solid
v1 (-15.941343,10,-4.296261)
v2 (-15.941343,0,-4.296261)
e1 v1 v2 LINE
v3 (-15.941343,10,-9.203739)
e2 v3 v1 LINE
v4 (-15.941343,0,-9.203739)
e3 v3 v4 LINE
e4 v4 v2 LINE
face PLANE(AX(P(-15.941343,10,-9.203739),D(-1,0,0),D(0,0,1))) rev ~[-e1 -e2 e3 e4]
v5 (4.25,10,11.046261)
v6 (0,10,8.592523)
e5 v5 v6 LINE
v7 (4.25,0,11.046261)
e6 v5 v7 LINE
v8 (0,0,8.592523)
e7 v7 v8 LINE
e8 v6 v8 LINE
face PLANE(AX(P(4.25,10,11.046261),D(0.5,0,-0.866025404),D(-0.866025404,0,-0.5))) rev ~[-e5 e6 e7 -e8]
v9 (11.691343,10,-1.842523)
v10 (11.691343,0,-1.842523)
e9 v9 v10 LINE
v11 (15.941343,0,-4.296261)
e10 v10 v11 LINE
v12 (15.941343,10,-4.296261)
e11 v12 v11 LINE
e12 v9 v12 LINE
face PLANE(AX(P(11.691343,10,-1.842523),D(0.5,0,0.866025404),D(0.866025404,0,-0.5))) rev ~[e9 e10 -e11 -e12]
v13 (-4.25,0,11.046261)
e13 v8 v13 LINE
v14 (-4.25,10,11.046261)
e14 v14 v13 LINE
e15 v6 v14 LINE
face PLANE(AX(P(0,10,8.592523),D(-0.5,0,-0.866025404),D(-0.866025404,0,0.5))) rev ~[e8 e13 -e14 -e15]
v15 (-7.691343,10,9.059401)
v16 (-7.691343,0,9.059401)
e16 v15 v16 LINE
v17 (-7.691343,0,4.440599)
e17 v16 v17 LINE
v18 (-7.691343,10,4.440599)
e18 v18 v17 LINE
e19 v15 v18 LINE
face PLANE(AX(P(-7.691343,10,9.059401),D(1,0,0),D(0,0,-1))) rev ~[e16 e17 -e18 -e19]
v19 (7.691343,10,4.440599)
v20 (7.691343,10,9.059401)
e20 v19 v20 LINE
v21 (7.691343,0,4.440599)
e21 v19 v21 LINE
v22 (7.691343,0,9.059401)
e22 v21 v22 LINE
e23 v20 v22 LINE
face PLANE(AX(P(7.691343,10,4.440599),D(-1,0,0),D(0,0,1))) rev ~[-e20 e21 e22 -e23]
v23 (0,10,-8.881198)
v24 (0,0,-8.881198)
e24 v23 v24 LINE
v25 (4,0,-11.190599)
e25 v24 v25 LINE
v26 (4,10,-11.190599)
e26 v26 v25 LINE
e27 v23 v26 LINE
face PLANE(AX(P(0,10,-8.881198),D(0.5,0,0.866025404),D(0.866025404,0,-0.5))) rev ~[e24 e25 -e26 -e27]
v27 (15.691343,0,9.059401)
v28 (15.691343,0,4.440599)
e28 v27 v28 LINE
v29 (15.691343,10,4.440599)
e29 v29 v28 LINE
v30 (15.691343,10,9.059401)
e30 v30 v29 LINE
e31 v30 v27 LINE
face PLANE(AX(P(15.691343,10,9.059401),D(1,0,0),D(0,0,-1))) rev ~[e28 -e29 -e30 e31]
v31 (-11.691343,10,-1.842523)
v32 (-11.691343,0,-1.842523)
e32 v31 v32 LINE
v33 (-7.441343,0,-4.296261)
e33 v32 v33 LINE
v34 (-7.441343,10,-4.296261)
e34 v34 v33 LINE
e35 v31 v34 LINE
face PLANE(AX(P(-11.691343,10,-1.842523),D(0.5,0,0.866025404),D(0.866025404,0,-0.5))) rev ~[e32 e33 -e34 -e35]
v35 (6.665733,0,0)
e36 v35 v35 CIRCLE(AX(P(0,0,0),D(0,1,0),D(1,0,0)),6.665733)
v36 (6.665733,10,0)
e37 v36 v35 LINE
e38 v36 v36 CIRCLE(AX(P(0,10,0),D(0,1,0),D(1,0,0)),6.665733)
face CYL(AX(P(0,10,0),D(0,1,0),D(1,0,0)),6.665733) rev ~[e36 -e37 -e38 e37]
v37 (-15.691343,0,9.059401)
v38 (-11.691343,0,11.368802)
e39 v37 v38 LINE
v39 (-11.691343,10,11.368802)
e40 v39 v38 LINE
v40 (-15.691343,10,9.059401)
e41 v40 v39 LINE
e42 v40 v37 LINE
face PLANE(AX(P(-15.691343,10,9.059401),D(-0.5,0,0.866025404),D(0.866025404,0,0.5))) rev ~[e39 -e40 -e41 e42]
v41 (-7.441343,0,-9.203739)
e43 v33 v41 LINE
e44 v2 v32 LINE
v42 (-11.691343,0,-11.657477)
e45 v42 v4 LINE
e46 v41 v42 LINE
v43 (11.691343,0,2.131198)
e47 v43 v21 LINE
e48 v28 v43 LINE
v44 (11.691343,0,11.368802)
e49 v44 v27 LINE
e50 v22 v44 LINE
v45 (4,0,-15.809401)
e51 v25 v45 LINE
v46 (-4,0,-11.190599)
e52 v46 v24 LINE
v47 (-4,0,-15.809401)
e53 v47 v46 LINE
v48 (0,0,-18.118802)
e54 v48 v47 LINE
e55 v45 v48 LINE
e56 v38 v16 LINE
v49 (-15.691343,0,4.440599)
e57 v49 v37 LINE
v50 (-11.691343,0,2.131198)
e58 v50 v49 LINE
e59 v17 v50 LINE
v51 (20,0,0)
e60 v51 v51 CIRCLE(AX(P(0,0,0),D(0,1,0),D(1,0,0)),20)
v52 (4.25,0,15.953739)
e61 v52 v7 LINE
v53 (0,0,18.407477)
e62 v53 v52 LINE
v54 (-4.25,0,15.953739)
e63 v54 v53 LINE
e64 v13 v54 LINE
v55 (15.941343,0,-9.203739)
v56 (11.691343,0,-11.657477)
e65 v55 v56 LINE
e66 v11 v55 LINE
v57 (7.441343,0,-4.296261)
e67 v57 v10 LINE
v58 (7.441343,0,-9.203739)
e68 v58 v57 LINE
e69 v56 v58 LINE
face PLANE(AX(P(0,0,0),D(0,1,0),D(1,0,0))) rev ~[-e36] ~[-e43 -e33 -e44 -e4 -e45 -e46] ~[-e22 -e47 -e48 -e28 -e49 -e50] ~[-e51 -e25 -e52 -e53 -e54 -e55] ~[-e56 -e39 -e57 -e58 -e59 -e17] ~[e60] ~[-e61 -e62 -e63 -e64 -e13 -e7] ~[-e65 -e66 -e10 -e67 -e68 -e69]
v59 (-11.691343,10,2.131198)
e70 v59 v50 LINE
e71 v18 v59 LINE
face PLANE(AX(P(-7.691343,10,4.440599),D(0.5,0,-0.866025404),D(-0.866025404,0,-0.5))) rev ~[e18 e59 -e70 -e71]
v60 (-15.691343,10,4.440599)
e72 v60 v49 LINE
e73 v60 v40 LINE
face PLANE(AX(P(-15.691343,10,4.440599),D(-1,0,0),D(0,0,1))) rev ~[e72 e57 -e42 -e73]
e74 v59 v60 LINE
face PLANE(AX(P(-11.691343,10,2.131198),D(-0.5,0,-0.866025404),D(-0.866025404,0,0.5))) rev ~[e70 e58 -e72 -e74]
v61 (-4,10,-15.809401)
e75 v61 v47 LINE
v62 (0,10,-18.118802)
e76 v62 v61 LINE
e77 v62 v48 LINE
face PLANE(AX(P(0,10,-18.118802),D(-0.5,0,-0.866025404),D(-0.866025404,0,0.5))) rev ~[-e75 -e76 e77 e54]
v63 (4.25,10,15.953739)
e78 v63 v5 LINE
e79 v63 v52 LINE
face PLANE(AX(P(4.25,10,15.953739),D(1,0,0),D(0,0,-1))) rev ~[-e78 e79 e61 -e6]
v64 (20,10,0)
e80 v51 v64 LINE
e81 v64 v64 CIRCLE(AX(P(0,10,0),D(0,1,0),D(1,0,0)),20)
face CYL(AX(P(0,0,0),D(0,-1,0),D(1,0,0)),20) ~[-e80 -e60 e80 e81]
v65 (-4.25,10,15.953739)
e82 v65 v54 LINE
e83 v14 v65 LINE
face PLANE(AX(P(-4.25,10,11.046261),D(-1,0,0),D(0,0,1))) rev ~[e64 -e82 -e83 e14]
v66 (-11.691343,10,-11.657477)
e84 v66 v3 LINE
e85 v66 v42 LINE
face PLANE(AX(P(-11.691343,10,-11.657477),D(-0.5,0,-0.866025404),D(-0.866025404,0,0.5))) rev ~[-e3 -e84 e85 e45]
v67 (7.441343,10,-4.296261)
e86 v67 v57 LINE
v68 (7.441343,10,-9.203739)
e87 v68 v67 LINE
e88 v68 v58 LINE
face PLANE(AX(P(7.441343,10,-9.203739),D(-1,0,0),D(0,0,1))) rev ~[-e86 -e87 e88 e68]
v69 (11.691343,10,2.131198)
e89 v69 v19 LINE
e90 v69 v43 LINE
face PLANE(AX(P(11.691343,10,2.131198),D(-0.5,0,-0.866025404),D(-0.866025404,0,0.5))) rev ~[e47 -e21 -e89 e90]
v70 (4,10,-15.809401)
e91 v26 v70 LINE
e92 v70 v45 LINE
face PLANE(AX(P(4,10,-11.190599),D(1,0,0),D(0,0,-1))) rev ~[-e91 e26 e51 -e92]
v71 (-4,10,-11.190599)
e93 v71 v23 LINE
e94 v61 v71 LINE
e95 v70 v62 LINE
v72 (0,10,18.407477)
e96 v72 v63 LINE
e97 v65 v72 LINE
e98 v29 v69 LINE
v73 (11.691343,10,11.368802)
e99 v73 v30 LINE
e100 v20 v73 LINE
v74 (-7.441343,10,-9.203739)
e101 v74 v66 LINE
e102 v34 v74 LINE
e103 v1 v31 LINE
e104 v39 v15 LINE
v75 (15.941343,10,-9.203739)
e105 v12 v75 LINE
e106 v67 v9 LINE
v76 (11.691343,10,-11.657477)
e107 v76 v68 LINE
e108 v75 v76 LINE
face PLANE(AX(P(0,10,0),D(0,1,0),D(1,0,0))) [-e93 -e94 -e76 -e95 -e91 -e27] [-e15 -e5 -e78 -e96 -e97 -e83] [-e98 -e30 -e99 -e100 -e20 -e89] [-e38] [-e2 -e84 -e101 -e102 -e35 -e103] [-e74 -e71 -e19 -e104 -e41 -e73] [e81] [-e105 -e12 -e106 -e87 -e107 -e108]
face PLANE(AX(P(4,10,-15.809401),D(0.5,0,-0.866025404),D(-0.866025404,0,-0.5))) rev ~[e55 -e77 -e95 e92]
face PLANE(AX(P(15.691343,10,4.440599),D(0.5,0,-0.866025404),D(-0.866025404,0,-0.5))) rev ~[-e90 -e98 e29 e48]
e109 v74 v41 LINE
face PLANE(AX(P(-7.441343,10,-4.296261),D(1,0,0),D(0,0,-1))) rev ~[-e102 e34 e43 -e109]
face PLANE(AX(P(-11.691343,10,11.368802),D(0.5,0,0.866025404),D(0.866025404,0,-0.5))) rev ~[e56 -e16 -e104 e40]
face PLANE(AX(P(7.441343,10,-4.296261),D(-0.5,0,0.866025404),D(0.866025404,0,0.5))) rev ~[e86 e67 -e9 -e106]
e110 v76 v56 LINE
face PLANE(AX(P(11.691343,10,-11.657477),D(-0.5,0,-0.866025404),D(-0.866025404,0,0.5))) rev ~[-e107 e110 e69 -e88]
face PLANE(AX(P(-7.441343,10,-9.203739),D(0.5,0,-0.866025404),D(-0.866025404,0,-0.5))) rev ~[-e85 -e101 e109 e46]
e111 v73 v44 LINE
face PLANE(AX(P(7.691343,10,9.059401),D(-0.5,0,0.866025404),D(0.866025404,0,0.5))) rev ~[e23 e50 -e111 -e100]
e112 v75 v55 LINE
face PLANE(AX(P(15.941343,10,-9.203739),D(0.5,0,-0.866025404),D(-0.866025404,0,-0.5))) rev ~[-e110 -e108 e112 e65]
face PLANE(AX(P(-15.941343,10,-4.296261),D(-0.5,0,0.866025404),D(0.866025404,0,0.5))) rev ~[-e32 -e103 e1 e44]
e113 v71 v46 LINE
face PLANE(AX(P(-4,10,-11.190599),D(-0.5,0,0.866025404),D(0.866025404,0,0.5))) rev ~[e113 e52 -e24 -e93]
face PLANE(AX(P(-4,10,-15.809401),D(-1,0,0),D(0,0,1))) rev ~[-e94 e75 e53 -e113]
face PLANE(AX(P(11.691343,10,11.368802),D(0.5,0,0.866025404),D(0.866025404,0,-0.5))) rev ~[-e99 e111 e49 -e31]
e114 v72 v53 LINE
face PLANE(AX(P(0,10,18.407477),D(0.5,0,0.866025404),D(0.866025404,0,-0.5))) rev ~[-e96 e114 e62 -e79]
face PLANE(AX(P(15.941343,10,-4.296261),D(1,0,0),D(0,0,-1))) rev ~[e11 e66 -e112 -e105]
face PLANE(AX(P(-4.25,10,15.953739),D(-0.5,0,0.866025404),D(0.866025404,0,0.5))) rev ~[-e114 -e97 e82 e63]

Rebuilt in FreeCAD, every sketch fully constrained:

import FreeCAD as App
import Part
import Sketcher

V = App.Vector
Q = App.Units.Quantity

doc = App.newDocument("Part")
params = doc.addObject("Spreadsheet::Sheet", "Params")
for row, (alias, value) in enumerate([
    ("sketch1_diameter", "40 mm"),
    ("pad1_length", "10 mm"),
    ("pocket1_length", "10 mm"),
    ("pocket2_length", "10 mm"),
    ("pocket3_length", "10 mm"),
], start=1):
    params.set(f"A{row}", alias)
    params.set(f"B{row}", "=" + value)
    params.setAlias(f"B{row}", alias)

body = doc.addObject("PartDesign::Body", "Body")

sketch1 = body.newObject("Sketcher::SketchObject", "Sketch")
sketch1.AttachmentSupport = (doc.getObject("XZ_Plane"), [""])
sketch1.MapMode = "FlatFace"
sketch1.addGeometry(Part.Circle(V(0, 0, 0), V(0, 0, 1), 20), False)
sketch1.addConstraint([
    Sketcher.Constraint("Coincident", 0, 3, -1, 1),
    Sketcher.Constraint("Diameter", 0, Q("40 mm")),
])
sketch1.setExpression("Constraints[1]", "Params.sketch1_diameter")
pad1 = body.newObject("PartDesign::Pad", "Pad")
pad1.Profile = sketch1
pad1.setExpression("Length", "Params.pad1_length")
pad1.Reversed = True

sketch2 = body.newObject("Sketcher::SketchObject", "Sketch001")
sketch2.AttachmentSupport = (doc.getObject("XZ_Plane"), [""])
sketch2.MapMode = "FlatFace"
sketch2.AttachmentOffset = App.Placement(V(0, 0, -10), App.Rotation())
sketch2.addGeometry([
    Part.LineSegment(V(7.7, 4.4, 0), V(7.7, 9.1, 0)),
    Part.LineSegment(V(7.7, 9.1, 0), V(11.7, 11.4, 0)),
    Part.LineSegment(V(11.7, 11.4, 0), V(15.7, 9.1, 0)),
    Part.LineSegment(V(15.7, 9.1, 0), V(15.7, 4.4, 0)),
    Part.LineSegment(V(15.7, 4.4, 0), V(11.7, 2.1, 0)),
    Part.LineSegment(V(11.7, 2.1, 0), V(7.7, 4.4, 0)),
    Part.LineSegment(V(0, -8.9, 0), V(4, -11.2, 0)),
    Part.LineSegment(V(4, -11.2, 0), V(4, -15.8, 0)),
    Part.LineSegment(V(4, -15.8, 0), V(0, -18.1, 0)),
    Part.LineSegment(V(0, -18.1, 0), V(-4, -15.8, 0)),
    Part.LineSegment(V(-4, -15.8, 0), V(-4, -11.2, 0)),
    Part.LineSegment(V(-4, -11.2, 0), V(0, -8.9, 0)),
    Part.LineSegment(V(-7.7, 4.4, 0), V(-11.7, 2.1, 0)),
    Part.LineSegment(V(-11.7, 2.1, 0), V(-15.7, 4.4, 0)),
    Part.LineSegment(V(-15.7, 4.4, 0), V(-15.7, 9.1, 0)),
    Part.LineSegment(V(-15.7, 9.1, 0), V(-11.7, 11.4, 0)),
    Part.LineSegment(V(-11.7, 11.4, 0), V(-7.7, 9.1, 0)),
    Part.LineSegment(V(-7.7, 9.1, 0), V(-7.7, 4.4, 0)),
], False)
sketch2.addConstraint([
    Sketcher.Constraint("Coincident", 0, 2, 1, 1),
    Sketcher.Constraint("Coincident", 1, 2, 2, 1),
    Sketcher.Constraint("Coincident", 2, 2, 3, 1),
    Sketcher.Constraint("Coincident", 3, 2, 4, 1),
    Sketcher.Constraint("Coincident", 4, 2, 5, 1),
    Sketcher.Constraint("Coincident", 5, 2, 0, 1),
    Sketcher.Constraint("Coincident", 6, 2, 7, 1),
    Sketcher.Constraint("Coincident", 7, 2, 8, 1),
    Sketcher.Constraint("Coincident", 8, 2, 9, 1),
    Sketcher.Constraint("Coincident", 9, 2, 10, 1),
    Sketcher.Constraint("Coincident", 10, 2, 11, 1),
    Sketcher.Constraint("Coincident", 11, 2, 6, 1),
    Sketcher.Constraint("Coincident", 12, 2, 13, 1),
    Sketcher.Constraint("Coincident", 13, 2, 14, 1),
    Sketcher.Constraint("Coincident", 14, 2, 15, 1),
    Sketcher.Constraint("Coincident", 15, 2, 16, 1),
    Sketcher.Constraint("Coincident", 16, 2, 17, 1),
    Sketcher.Constraint("Coincident", 17, 2, 12, 1),
    Sketcher.Constraint("Vertical", 0),
    Sketcher.Constraint("Vertical", 3),
    Sketcher.Constraint("Vertical", 7),
    Sketcher.Constraint("Vertical", 10),
    Sketcher.Constraint("Vertical", 14),
    Sketcher.Constraint("Vertical", 17),
    Sketcher.Constraint("Symmetric", 7, 2, 9, 2, -2),
    Sketcher.Constraint("Symmetric", 4, 2, 12, 2, -2),
    Sketcher.Constraint("Symmetric", 3, 2, 13, 2, -2),
    Sketcher.Constraint("Symmetric", 1, 2, 15, 2, -2),
    Sketcher.Constraint("Symmetric", 0, 2, 16, 2, -2),
    Sketcher.Constraint("PointOnObject", 8, 2, -2),
    Sketcher.Constraint("PointOnObject", 11, 2, -2),
    Sketcher.Constraint("Parallel", 1, 4),
    Sketcher.Constraint("Parallel", 2, 5),
    Sketcher.Constraint("Parallel", 5, 6),
    Sketcher.Constraint("Parallel", 4, 8),
    Sketcher.Constraint("Parallel", 6, 9),
    Sketcher.Constraint("Parallel", 8, 11),
    Sketcher.Constraint("Parallel", 11, 12),
    Sketcher.Constraint("Parallel", 12, 15),
    Sketcher.Constraint("Horizontal", 0, 2, 2, 2),
    Sketcher.Constraint("Horizontal", 3, 2, 5, 2),
    Sketcher.Constraint("Equal", 3, 7),
    Sketcher.Constraint("Equal", 5, 6),
    Sketcher.Constraint("Angle", 1, Q("30 deg")),
    Sketcher.Constraint("DistanceX", -1, 1, 6, 2, Q("4 mm")),
    Sketcher.Constraint("DistanceY", 6, 2, 0, 2, Q("20.25 mm")),
    Sketcher.Constraint("DistanceY", -1, 1, 0, 2, Q("9.059401 mm")),
    Sketcher.Constraint("DistanceY", -1, 1, 3, 2, Q("4.440599 mm")),
    Sketcher.Constraint("DistanceX", -1, 1, 0, 2, Q("7.691343 mm")),
])
pocket1 = body.newObject("PartDesign::Pocket", "Pocket")
pocket1.Profile = sketch2
pocket1.setExpression("Length", "Params.pocket1_length")
pocket1.Reversed = True

sketch3 = body.newObject("Sketcher::SketchObject", "Sketch002")
sketch3.AttachmentSupport = (doc.getObject("XZ_Plane"), [""])
sketch3.MapMode = "FlatFace"
sketch3.AttachmentOffset = App.Placement(V(0, 0, -10), App.Rotation())
sketch3.addGeometry(Part.Circle(V(0, 0, 0), V(0, 0, 1), 7), False)
sketch3.addConstraint([
    Sketcher.Constraint("Coincident", 0, 3, -1, 1),
    Sketcher.Constraint("Diameter", 0, Q("13.331467 mm")),
])
pocket2 = body.newObject("PartDesign::Pocket", "Pocket001")
pocket2.Profile = sketch3
pocket2.setExpression("Length", "Params.pocket2_length")
pocket2.Reversed = True

sketch4 = body.newObject("Sketcher::SketchObject", "Sketch003")
sketch4.AttachmentSupport = (doc.getObject("XZ_Plane"), [""])
sketch4.MapMode = "FlatFace"
sketch4.AttachmentOffset = App.Placement(V(0, 0, -10), App.Rotation())
sketch4.addGeometry([
    Part.LineSegment(V(-11.7, -11.7, 0), V(-15.9, -9.2, 0)),
    Part.LineSegment(V(-15.9, -9.2, 0), V(-15.9, -4.3, 0)),
    Part.LineSegment(V(-15.9, -4.3, 0), V(-11.7, -1.8, 0)),
    Part.LineSegment(V(-11.7, -1.8, 0), V(-7.4, -4.3, 0)),
    Part.LineSegment(V(-7.4, -4.3, 0), V(-7.4, -9.2, 0)),
    Part.LineSegment(V(-7.4, -9.2, 0), V(-11.7, -11.7, 0)),
    Part.LineSegment(V(0, 18.4, 0), V(4.2, 16, 0)),
    Part.LineSegment(V(4.2, 16, 0), V(4.2, 11, 0)),
    Part.LineSegment(V(4.2, 11, 0), V(0, 8.6, 0)),
    Part.LineSegment(V(0, 8.6, 0), V(-4.2, 11, 0)),
    Part.LineSegment(V(-4.2, 11, 0), V(-4.2, 16, 0)),
    Part.LineSegment(V(-4.2, 16, 0), V(0, 18.4, 0)),
    Part.LineSegment(V(15.9, -4.3, 0), V(15.9, -9.2, 0)),
    Part.LineSegment(V(15.9, -9.2, 0), V(11.7, -11.7, 0)),
    Part.LineSegment(V(11.7, -11.7, 0), V(7.4, -9.2, 0)),
    Part.LineSegment(V(7.4, -9.2, 0), V(7.4, -4.3, 0)),
    Part.LineSegment(V(7.4, -4.3, 0), V(11.7, -1.8, 0)),
    Part.LineSegment(V(11.7, -1.8, 0), V(15.9, -4.3, 0)),
], False)
sketch4.addConstraint([
    Sketcher.Constraint("Coincident", 0, 2, 1, 1),
    Sketcher.Constraint("Coincident", 1, 2, 2, 1),
    Sketcher.Constraint("Coincident", 2, 2, 3, 1),
    Sketcher.Constraint("Coincident", 3, 2, 4, 1),
    Sketcher.Constraint("Coincident", 4, 2, 5, 1),
    Sketcher.Constraint("Coincident", 5, 2, 0, 1),
    Sketcher.Constraint("Coincident", 6, 2, 7, 1),
    Sketcher.Constraint("Coincident", 7, 2, 8, 1),
    Sketcher.Constraint("Coincident", 8, 2, 9, 1),
    Sketcher.Constraint("Coincident", 9, 2, 10, 1),
    Sketcher.Constraint("Coincident", 10, 2, 11, 1),
    Sketcher.Constraint("Coincident", 11, 2, 6, 1),
    Sketcher.Constraint("Coincident", 12, 2, 13, 1),
    Sketcher.Constraint("Coincident", 13, 2, 14, 1),
    Sketcher.Constraint("Coincident", 14, 2, 15, 1),
    Sketcher.Constraint("Coincident", 15, 2, 16, 1),
    Sketcher.Constraint("Coincident", 16, 2, 17, 1),
    Sketcher.Constraint("Coincident", 17, 2, 12, 1),
    Sketcher.Constraint("Vertical", 1),
    Sketcher.Constraint("Vertical", 4),
    Sketcher.Constraint("Vertical", 7),
    Sketcher.Constraint("Vertical", 10),
    Sketcher.Constraint("Vertical", 12),
    Sketcher.Constraint("Vertical", 15),
    Sketcher.Constraint("Symmetric", 7, 2, 9, 2, -2),
    Sketcher.Constraint("Symmetric", 0, 2, 12, 2, -2),
    Sketcher.Constraint("Symmetric", 5, 2, 13, 2, -2),
    Sketcher.Constraint("Symmetric", 4, 2, 14, 2, -2),
    Sketcher.Constraint("Symmetric", 2, 2, 16, 2, -2),
    Sketcher.Constraint("PointOnObject", 8, 2, -2),
    Sketcher.Constraint("PointOnObject", 11, 2, -2),
    Sketcher.Constraint("Parallel", 0, 3),
    Sketcher.Constraint("Parallel", 2, 5),
    Sketcher.Constraint("Parallel", 3, 6),
    Sketcher.Constraint("Parallel", 5, 8),
    Sketcher.Constraint("Parallel", 6, 9),
    Sketcher.Constraint("Parallel", 8, 11),
    Sketcher.Constraint("Parallel", 13, 16),
    Sketcher.Constraint("Parallel", 14, 17),
    Sketcher.Constraint("Horizontal", 1, 2, 3, 2),
    Sketcher.Constraint("Horizontal", 0, 2, 4, 2),
    Sketcher.Constraint("Equal", 4, 7),
    Sketcher.Constraint("Equal", 5, 6),
    Sketcher.Constraint("Angle", 0, Q("150 deg")),
    Sketcher.Constraint("DistanceX", 1, 2, 3, 2, Q("8.5 mm")),
    Sketcher.Constraint("DistanceY", 3, 2, 6, 2, Q("20.25 mm")),
    Sketcher.Constraint("DistanceY", 1, 1, 1, 2, Q("4.907477 mm")),
    Sketcher.Constraint("DistanceY", 0, 2, -1, 1, Q("9.203739 mm")),
    Sketcher.Constraint("DistanceX", 0, 2, -1, 1, Q("15.941343 mm")),
])
pocket3 = body.newObject("PartDesign::Pocket", "Pocket002")
pocket3.Profile = sketch4
pocket3.setExpression("Length", "Params.pocket3_length")
pocket3.Reversed = True

doc.recompute()
